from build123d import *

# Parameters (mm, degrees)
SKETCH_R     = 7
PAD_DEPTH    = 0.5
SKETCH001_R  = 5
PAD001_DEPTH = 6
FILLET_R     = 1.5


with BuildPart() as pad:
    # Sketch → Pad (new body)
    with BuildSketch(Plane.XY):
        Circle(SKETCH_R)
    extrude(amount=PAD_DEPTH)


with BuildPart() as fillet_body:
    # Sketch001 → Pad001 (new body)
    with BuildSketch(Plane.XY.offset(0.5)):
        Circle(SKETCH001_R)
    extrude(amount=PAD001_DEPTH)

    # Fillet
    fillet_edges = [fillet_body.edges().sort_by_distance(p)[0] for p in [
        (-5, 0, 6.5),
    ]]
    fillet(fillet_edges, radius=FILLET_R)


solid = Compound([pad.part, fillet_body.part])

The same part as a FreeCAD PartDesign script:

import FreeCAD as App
import Part
import Sketcher
Q = App.Units.Quantity


def edges_at(feature, points):
    """Names of the edges that pass closest to the given points."""
    edges = feature.Shape.Edges
    near = lambda p: min(range(len(edges)), key=lambda i: edges[i].distToShape(Part.Vertex(*p))[0])
    return sorted({f"Edge{near(p) + 1}" for p in points})

doc = App.newDocument("Part")
params = doc.addObject("Spreadsheet::Sheet", "Params")
for row, (alias, value) in enumerate([
    ("sketch1_diameter", "14 mm"),
    ("pad1_length", "0.5 mm"),
    ("sketch2_diameter", "10 mm"),
    ("pad2_length", "6 mm"),
    ("fillet_radius", "1.5 mm"),
], start=1):
    params.set(f"A{row}", alias)
    params.set(f"B{row}", "=" + value)
    params.setAlias(f"B{row}", alias)

body = doc.addObject("PartDesign::Body", "Body")

sketch1 = body.newObject("Sketcher::SketchObject", "Sketch")
sketch1.AttachmentSupport = (doc.getObject("XY_Plane"), [""])
sketch1.MapMode = "FlatFace"
sketch1.addGeometry(Part.Circle(App.Vector(0, 0, 0), App.Vector(0, 0, 1), 7), False)
sketch1.addConstraint(Sketcher.Constraint("Coincident", 0, 3, -1, 1))
sketch1.addConstraint(Sketcher.Constraint("Diameter", 0, Q("14 mm")))
sketch1.setExpression("Constraints[1]", "Params.sketch1_diameter")
pad1 = body.newObject("PartDesign::Pad", "Pad")
pad1.Profile = sketch1
pad1.setExpression("Length", "Params.pad1_length")
body2 = doc.addObject("PartDesign::Body", "Body001")

sketch2 = body2.newObject("Sketcher::SketchObject", "Sketch001")
sketch2.AttachmentSupport = (doc.getObject("XY_Plane001"), [""])
sketch2.MapMode = "FlatFace"
sketch2.AttachmentOffset = App.Placement(App.Vector(0, 0, 0.5), App.Rotation())
sketch2.addGeometry(Part.Circle(App.Vector(0, 0, 0), App.Vector(0, 0, 1), 5), False)
sketch2.addConstraint(Sketcher.Constraint("Coincident", 0, 3, -1, 1))
sketch2.addConstraint(Sketcher.Constraint("Diameter", 0, Q("10 mm")))
sketch2.setExpression("Constraints[1]", "Params.sketch2_diameter")
pad2 = body2.newObject("PartDesign::Pad", "Pad001")
pad2.Profile = sketch2
pad2.setExpression("Length", "Params.pad2_length")
doc.recompute()

fillet = body2.newObject("PartDesign::Fillet", "Fillet")
fillet.Base = (pad2, edges_at(pad2, [(-5, 0, 6.5)]))
fillet.setExpression("Radius", "Params.fillet_radius")

doc.recompute()
